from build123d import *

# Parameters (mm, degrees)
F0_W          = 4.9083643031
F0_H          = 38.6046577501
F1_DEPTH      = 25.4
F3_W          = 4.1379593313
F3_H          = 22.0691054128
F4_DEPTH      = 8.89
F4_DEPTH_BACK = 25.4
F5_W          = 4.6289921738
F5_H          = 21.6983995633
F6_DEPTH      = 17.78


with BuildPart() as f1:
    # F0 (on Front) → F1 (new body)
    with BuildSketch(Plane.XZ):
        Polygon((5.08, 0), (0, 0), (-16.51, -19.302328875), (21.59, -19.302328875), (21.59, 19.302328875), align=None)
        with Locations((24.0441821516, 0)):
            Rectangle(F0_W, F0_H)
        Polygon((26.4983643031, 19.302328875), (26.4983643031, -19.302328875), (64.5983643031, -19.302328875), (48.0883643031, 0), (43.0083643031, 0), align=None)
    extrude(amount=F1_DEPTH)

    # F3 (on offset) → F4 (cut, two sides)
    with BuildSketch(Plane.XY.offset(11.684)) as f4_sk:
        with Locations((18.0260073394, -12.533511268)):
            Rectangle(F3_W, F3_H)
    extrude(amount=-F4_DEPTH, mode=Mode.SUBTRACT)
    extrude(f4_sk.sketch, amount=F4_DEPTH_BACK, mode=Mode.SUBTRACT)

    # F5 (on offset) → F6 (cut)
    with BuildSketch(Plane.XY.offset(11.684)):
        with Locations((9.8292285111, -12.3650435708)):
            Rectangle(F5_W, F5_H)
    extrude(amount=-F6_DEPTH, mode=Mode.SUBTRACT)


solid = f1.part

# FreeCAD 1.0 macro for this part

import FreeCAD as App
import Part
import Sketcher
Q = App.Units.Quantity

doc = App.newDocument("Part")
body = doc.addObject("PartDesign::Body", "Body")

# Sketch on XZ plane
sketch1 = body.newObject("Sketcher::SketchObject", "Sketch")
sketch1.AttachmentSupport = (doc.getObject("XZ_Plane"), [""])
sketch1.MapMode = "FlatFace"
sketch1.addGeometry([
    Part.LineSegment(App.Vector(5.08, 0, 0), App.Vector(0, 0, 0)),  # 0
    Part.LineSegment(App.Vector(0, 0, 0), App.Vector(-16.51, -19.302329, 0)),  # 1
    Part.LineSegment(App.Vector(-16.51, -19.302329, 0), App.Vector(21.59, -19.302329, 0)),  # 2
    Part.LineSegment(App.Vector(21.59, -19.302329, 0), App.Vector(26.498364, -19.302329, 0)),  # 3
    Part.LineSegment(App.Vector(26.498364, -19.302329, 0), App.Vector(64.598364, -19.302329, 0)),  # 4
    Part.LineSegment(App.Vector(64.598364, -19.302329, 0), App.Vector(48.088364, 0, 0)),  # 5
    Part.LineSegment(App.Vector(48.088364, 0, 0), App.Vector(43.008364, 0, 0)),  # 6
    Part.LineSegment(App.Vector(43.008364, 0, 0), App.Vector(26.498364, 19.302329, 0)),  # 7
    Part.LineSegment(App.Vector(26.498364, 19.302329, 0), App.Vector(21.59, 19.302329, 0)),  # 8
    Part.LineSegment(App.Vector(21.59, 19.302329, 0), App.Vector(5.08, 0, 0)),  # 9
], False)
sketch1.addConstraint([
    Sketcher.Constraint("Coincident", 0, 2, 1, 1),
    Sketcher.Constraint("Coincident", 1, 2, 2, 1),
    Sketcher.Constraint("Coincident", 2, 2, 3, 1),
    Sketcher.Constraint("Coincident", 3, 2, 4, 1),
    Sketcher.Constraint("Coincident", 4, 2, 5, 1),
    Sketcher.Constraint("Coincident", 5, 2, 6, 1),
    Sketcher.Constraint("Coincident", 6, 2, 7, 1),
    Sketcher.Constraint("Coincident", 7, 2, 8, 1),
    Sketcher.Constraint("Coincident", 8, 2, 9, 1),
    Sketcher.Constraint("Coincident", 9, 2, 0, 1),
    Sketcher.Constraint("Horizontal", 0),
    Sketcher.Constraint("Horizontal", 2),
    Sketcher.Constraint("Horizontal", 3),
    Sketcher.Constraint("Horizontal", 4),
    Sketcher.Constraint("Horizontal", 6),
    Sketcher.Constraint("Horizontal", 8),
    Sketcher.Constraint("Coincident", 0, 2, -1, 1),
    Sketcher.Constraint("Symmetric", 3, 2, 7, 2, -1),
    Sketcher.Constraint("PointOnObject", 5, 2, -1),
    Sketcher.Constraint("Parallel", 5, 7),
    Sketcher.Constraint("Parallel", 1, 9),
    Sketcher.Constraint("Vertical", 2, 2, 8, 2),
    Sketcher.Constraint("Equal", 2, 4),
    Sketcher.Constraint("Equal", 0, 6),
    Sketcher.Constraint("Distance", 1, Q("1 in")),
    Sketcher.Constraint("DistanceX", 0, 2, 0, 1, Q("0.2 in")),
    Sketcher.Constraint("DistanceX", 2, 1, 2, 2, Q("1.5 in")),
    Sketcher.Constraint("DistanceX", 3, 1, 3, 2, 4.908364),
])
pad1 = body.newObject("PartDesign::Pad", "Pad")
pad1.Profile = sketch1
pad1.Length = Q("1 in")

# Sketch on XY plane
sketch2 = body.newObject("Sketcher::SketchObject", "Sketch001")
sketch2.AttachmentSupport = (doc.getObject("XY_Plane"), [""])
sketch2.MapMode = "FlatFace"
sketch2.AttachmentOffset = App.Placement(App.Vector(0, 0, 0.46 * 25.4), App.Rotation())
sketch2.addGeometry([
    Part.LineSegment(App.Vector(15.957028, -1.498959, 0), App.Vector(15.957028, -23.568064, 0)),
    Part.LineSegment(App.Vector(15.957028, -23.568064, 0), App.Vector(20.094987, -23.568064, 0)),
    Part.LineSegment(App.Vector(20.094987, -23.568064, 0), App.Vector(20.094987, -1.498959, 0)),
    Part.LineSegment(App.Vector(20.094987, -1.498959, 0), App.Vector(15.957028, -1.498959, 0)),
], False)
sketch2.addConstraint([
    Sketcher.Constraint("Coincident", 0, 2, 1, 1),
    Sketcher.Constraint("Coincident", 1, 2, 2, 1),
    Sketcher.Constraint("Coincident", 2, 2, 3, 1),
    Sketcher.Constraint("Coincident", 3, 2, 0, 1),
    Sketcher.Constraint("Vertical", 0),
    Sketcher.Constraint("Horizontal", 1),
    Sketcher.Constraint("Vertical", 2),
    Sketcher.Constraint("Horizontal", 3),
    Sketcher.Constraint("DistanceX", 1, 1, 1, 2, 4.137959),
    Sketcher.Constraint("DistanceY", 0, 2, 0, 1, 22.069105),
    Sketcher.Constraint("DistanceY", 2, 2, -1, 1, 1.498959),
    Sketcher.Constraint("DistanceX", -1, 1, 0, 2, 15.957028),
])
pocket1 = body.newObject("PartDesign::Pocket", "Pocket")
pocket1.Profile = sketch2
pocket1.Type = "TwoLengths"
pocket1.Length = Q("0.35 in")
pocket1.Length2 = Q("1 in")

# Sketch on XY plane
sketch3 = body.newObject("Sketcher::SketchObject", "Sketch002")
sketch3.AttachmentSupport = (doc.getObject("XY_Plane"), [""])
sketch3.MapMode = "FlatFace"
sketch3.AttachmentOffset = App.Placement(App.Vector(0, 0, 0.46 * 25.4), App.Rotation())
sketch3.addGeometry([
    Part.LineSegment(App.Vector(7.514732, -1.515844, 0), App.Vector(7.514732, -23.214243, 0)),
    Part.LineSegment(App.Vector(7.514732, -23.214243, 0), App.Vector(12.143725, -23.214243, 0)),
    Part.LineSegment(App.Vector(12.143725, -23.214243, 0), App.Vector(12.143725, -1.515844, 0)),
    Part.LineSegment(App.Vector(12.143725, -1.515844, 0), App.Vector(7.514732, -1.515844, 0)),
], False)
sketch3.addConstraint([
    Sketcher.Constraint("Coincident", 0, 2, 1, 1),
    Sketcher.Constraint("Coincident", 1, 2, 2, 1),
    Sketcher.Constraint("Coincident", 2, 2, 3, 1),
    Sketcher.Constraint("Coincident", 3, 2, 0, 1),
    Sketcher.Constraint("Vertical", 0),
    Sketcher.Constraint("Horizontal", 1),
    Sketcher.Constraint("Vertical", 2),
    Sketcher.Constraint("Horizontal", 3),
    Sketcher.Constraint("DistanceY", 0, 2, 0, 1, 21.6984),
    Sketcher.Constraint("DistanceX", 1, 1, 1, 2, 4.628992),
    Sketcher.Constraint("DistanceX", -1, 1, 0, 2, 7.514732),
    Sketcher.Constraint("DistanceY", 0, 2, -1, 1, 23.214243),
])
pocket2 = body.newObject("PartDesign::Pocket", "Pocket001")
pocket2.Profile = sketch3
pocket2.Length = Q("0.7 in")

doc.recompute()
